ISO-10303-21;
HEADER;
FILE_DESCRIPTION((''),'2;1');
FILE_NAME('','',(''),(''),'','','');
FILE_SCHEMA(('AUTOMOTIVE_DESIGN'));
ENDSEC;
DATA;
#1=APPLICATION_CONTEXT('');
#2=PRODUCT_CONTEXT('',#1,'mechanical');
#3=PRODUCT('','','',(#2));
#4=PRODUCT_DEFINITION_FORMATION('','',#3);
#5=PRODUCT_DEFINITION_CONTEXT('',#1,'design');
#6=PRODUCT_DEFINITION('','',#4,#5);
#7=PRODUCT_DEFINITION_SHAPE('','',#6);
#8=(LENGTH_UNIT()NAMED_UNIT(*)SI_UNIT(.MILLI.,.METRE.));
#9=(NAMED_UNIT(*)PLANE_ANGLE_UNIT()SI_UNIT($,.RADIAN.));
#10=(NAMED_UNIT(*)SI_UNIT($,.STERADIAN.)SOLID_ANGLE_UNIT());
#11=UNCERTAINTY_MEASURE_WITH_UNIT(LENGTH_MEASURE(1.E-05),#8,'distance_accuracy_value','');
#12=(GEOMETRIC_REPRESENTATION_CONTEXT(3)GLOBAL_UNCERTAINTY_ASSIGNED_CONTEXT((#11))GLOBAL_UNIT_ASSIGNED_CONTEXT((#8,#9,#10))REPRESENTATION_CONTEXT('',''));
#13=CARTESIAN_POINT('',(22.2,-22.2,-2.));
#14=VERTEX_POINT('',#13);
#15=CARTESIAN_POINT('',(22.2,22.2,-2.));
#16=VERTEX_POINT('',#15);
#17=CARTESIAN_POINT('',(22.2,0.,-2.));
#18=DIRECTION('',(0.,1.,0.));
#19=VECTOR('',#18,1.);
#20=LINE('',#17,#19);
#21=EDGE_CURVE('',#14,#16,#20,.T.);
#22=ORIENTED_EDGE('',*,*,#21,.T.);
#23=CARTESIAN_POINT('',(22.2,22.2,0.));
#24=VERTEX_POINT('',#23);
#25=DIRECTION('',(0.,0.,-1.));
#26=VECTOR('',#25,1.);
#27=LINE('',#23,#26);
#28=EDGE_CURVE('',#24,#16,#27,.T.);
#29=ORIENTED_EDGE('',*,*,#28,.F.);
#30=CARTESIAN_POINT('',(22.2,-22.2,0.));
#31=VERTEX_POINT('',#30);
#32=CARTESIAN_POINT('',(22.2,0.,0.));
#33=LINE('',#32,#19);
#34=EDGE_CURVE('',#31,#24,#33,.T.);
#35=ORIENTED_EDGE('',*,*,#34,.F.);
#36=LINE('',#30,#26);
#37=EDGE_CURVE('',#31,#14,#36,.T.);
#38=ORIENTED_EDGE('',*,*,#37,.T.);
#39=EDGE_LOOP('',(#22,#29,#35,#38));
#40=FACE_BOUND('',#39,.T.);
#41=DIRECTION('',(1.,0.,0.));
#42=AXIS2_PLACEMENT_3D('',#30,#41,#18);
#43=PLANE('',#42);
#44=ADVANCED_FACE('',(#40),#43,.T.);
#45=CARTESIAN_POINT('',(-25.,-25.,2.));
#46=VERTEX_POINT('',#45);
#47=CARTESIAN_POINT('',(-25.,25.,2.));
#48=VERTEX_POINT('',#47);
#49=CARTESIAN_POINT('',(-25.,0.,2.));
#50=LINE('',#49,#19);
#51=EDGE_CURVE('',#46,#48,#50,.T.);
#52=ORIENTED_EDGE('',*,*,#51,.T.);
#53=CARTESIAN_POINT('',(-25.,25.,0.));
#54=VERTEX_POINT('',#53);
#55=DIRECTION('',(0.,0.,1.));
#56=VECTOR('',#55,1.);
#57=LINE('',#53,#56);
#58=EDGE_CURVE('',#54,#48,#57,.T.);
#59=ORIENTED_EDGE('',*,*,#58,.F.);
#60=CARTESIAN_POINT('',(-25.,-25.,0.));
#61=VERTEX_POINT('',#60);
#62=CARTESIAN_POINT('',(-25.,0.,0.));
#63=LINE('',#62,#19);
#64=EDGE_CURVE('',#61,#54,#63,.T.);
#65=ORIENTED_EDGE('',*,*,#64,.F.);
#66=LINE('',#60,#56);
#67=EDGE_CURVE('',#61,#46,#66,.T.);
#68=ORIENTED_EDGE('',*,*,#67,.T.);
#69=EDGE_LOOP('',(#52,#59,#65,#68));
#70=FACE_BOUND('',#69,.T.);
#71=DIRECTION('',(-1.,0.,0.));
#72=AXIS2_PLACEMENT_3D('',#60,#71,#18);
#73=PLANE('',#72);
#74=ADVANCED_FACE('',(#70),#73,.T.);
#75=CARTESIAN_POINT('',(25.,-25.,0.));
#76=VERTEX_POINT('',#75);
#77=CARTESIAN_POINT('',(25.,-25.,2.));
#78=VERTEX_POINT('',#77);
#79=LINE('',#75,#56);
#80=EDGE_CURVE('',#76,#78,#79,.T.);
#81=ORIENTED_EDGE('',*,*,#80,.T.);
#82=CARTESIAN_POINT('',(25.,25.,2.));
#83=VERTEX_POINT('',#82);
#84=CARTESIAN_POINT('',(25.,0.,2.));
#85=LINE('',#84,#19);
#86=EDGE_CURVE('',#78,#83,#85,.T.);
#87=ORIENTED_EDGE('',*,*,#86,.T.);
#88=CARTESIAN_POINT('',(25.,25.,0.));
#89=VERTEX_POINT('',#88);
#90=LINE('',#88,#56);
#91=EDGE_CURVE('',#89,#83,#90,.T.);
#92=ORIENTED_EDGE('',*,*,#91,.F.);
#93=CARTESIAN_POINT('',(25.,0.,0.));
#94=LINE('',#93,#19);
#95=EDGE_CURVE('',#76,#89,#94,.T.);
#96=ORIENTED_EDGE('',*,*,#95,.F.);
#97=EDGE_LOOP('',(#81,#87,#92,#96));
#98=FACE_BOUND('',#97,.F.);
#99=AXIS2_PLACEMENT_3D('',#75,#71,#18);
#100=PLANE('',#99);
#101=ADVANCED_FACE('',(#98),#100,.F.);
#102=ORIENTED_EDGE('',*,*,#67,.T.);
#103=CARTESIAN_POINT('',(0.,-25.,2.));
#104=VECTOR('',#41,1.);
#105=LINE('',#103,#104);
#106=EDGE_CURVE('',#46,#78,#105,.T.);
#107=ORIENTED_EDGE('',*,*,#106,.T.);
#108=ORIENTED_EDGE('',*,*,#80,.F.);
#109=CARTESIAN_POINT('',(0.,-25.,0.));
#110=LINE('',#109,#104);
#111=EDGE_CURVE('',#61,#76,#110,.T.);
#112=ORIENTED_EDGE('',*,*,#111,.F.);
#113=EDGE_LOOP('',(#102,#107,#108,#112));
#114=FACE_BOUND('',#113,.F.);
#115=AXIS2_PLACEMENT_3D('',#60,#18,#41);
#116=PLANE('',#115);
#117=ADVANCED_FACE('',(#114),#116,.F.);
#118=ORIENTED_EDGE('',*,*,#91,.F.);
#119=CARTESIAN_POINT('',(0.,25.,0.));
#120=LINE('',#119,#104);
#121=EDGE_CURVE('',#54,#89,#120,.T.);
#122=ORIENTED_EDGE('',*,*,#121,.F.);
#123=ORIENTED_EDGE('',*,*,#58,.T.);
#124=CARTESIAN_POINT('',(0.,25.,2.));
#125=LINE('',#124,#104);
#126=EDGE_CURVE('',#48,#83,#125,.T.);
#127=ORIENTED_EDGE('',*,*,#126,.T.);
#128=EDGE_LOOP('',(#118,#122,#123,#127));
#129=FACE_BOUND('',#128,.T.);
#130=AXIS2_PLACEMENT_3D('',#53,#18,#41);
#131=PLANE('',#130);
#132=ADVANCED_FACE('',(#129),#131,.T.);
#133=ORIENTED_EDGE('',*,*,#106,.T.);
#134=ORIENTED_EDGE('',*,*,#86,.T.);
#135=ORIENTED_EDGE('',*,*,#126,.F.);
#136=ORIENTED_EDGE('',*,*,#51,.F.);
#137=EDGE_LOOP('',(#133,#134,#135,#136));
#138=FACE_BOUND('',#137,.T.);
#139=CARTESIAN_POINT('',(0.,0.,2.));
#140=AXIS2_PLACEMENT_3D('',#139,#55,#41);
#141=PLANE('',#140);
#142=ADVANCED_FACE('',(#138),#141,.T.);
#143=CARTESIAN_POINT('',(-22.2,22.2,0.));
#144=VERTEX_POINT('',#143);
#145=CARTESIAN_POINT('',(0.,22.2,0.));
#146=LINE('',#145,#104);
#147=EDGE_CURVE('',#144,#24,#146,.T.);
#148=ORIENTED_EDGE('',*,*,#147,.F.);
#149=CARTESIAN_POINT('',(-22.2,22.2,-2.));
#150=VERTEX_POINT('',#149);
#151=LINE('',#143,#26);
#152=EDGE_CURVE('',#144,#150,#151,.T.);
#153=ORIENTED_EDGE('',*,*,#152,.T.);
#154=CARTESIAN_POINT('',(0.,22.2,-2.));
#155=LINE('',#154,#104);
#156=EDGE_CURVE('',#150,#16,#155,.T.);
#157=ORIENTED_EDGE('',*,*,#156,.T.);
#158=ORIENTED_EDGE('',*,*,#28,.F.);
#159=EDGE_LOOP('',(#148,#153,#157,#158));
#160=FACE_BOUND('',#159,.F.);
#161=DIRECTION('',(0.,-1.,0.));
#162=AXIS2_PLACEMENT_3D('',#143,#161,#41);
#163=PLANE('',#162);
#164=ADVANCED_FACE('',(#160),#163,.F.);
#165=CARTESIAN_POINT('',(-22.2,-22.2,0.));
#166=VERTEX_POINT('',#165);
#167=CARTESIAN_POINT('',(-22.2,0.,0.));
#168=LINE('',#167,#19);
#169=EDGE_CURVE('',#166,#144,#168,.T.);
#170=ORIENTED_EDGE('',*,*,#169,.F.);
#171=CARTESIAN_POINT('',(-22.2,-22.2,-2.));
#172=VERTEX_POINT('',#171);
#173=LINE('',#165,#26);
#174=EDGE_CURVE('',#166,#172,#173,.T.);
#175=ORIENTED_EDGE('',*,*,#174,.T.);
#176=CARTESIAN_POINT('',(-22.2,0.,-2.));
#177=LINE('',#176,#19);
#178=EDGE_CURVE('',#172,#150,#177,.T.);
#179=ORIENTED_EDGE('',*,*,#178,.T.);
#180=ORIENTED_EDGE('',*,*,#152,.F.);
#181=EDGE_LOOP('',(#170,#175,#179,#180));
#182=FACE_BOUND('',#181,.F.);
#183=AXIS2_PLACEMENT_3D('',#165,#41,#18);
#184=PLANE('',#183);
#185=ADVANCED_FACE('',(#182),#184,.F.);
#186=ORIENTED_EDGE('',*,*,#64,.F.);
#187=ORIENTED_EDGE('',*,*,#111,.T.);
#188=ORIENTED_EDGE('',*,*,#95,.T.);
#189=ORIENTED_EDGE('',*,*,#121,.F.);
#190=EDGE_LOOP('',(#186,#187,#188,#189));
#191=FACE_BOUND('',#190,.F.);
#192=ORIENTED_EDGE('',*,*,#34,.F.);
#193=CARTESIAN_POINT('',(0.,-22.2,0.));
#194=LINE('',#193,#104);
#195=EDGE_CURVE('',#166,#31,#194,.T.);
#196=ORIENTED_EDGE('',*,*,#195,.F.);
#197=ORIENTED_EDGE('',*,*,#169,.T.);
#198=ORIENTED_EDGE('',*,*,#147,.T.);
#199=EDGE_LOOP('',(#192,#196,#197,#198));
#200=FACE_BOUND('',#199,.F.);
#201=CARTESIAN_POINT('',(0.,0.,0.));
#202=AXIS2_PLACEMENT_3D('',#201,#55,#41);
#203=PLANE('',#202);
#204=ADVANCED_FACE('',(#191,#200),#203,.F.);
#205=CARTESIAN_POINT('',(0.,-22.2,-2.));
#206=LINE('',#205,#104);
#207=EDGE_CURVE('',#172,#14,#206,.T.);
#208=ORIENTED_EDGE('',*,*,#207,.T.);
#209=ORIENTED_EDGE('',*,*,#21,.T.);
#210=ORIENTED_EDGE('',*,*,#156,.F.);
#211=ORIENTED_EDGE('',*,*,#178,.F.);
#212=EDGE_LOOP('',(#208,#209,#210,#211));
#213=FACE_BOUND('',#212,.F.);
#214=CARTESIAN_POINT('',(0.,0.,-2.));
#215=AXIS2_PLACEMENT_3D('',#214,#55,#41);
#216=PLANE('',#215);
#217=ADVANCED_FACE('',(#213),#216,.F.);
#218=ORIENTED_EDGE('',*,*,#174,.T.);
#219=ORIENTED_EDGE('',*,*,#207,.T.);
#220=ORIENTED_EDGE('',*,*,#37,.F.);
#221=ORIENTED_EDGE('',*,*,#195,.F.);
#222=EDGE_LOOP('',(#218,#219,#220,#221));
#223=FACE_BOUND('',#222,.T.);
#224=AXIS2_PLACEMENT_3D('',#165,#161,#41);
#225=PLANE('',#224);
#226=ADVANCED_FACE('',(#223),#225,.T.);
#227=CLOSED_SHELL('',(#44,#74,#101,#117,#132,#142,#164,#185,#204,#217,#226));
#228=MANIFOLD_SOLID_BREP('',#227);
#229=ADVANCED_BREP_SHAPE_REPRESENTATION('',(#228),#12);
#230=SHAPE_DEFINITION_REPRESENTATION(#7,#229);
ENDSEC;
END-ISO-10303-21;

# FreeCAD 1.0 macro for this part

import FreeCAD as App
import Part
import Sketcher
from FreeCAD import Vector
Q = App.Units.Quantity

doc = App.newDocument("Part")
body = doc.addObject("PartDesign::Body", "Body")

sketch1 = body.newObject("Sketcher::SketchObject", "Sketch")
sketch1.AttachmentSupport = (doc.getObject("XY_Plane"), [""])
sketch1.MapMode = "FlatFace"
sketch1.addGeometry([
    Part.LineSegment(Vector(-22.2, 22.2, 0), Vector(-22.2, -22.2, 0)),
    Part.LineSegment(Vector(-22.2, -22.2, 0), Vector(22.2, -22.2, 0)),
    Part.LineSegment(Vector(22.2, -22.2, 0), Vector(22.2, 22.2, 0)),
    Part.LineSegment(Vector(22.2, 22.2, 0), Vector(-22.2, 22.2, 0)),
], False)
sketch1.addConstraint([
    Sketcher.Constraint("Coincident", 0, 2, 1, 1),
    Sketcher.Constraint("Coincident", 1, 2, 2, 1),
    Sketcher.Constraint("Coincident", 2, 2, 3, 1),
    Sketcher.Constraint("Coincident", 3, 2, 0, 1),
    Sketcher.Constraint("Vertical", 0),
    Sketcher.Constraint("Horizontal", 1),
    Sketcher.Constraint("Vertical", 2),
    Sketcher.Constraint("Horizontal", 3),
    Sketcher.Constraint("Symmetric", 0, 2, 2, 2, -1, 1),
    Sketcher.Constraint("Equal", 3, 0),
    Sketcher.Constraint("DistanceX", 1, 1, 1, 2, Q("44.4 mm")),
])
pad1 = body.newObject("PartDesign::Pad", "Pad")
pad1.Profile = sketch1
pad1.Length = 2
pad1.Reversed = True

sketch2 = body.newObject("Sketcher::SketchObject", "Sketch001")
sketch2.AttachmentSupport = (doc.getObject("XY_Plane"), [""])
sketch2.MapMode = "FlatFace"
sketch2.addGeometry([
    Part.LineSegment(Vector(-25, 25, 0), Vector(-25, -25, 0)),
    Part.LineSegment(Vector(-25, -25, 0), Vector(25, -25, 0)),
    Part.LineSegment(Vector(25, -25, 0), Vector(25, 25, 0)),
    Part.LineSegment(Vector(25, 25, 0), Vector(-25, 25, 0)),
], False)
sketch2.addConstraint([
    Sketcher.Constraint("Coincident", 0, 2, 1, 1),
    Sketcher.Constraint("Coincident", 1, 2, 2, 1),
    Sketcher.Constraint("Coincident", 2, 2, 3, 1),
    Sketcher.Constraint("Coincident", 3, 2, 0, 1),
    Sketcher.Constraint("Vertical", 0),
    Sketcher.Constraint("Horizontal", 1),
    Sketcher.Constraint("Vertical", 2),
    Sketcher.Constraint("Horizontal", 3),
    Sketcher.Constraint("Symmetric", 0, 2, 2, 2, -1, 1),
    Sketcher.Constraint("Equal", 3, 0),
    Sketcher.Constraint("DistanceX", 1, 1, 1, 2, Q("50 mm")),
])
pad2 = body.newObject("PartDesign::Pad", "Pad001")
pad2.Profile = sketch2
pad2.Length = 2

doc.recompute()
